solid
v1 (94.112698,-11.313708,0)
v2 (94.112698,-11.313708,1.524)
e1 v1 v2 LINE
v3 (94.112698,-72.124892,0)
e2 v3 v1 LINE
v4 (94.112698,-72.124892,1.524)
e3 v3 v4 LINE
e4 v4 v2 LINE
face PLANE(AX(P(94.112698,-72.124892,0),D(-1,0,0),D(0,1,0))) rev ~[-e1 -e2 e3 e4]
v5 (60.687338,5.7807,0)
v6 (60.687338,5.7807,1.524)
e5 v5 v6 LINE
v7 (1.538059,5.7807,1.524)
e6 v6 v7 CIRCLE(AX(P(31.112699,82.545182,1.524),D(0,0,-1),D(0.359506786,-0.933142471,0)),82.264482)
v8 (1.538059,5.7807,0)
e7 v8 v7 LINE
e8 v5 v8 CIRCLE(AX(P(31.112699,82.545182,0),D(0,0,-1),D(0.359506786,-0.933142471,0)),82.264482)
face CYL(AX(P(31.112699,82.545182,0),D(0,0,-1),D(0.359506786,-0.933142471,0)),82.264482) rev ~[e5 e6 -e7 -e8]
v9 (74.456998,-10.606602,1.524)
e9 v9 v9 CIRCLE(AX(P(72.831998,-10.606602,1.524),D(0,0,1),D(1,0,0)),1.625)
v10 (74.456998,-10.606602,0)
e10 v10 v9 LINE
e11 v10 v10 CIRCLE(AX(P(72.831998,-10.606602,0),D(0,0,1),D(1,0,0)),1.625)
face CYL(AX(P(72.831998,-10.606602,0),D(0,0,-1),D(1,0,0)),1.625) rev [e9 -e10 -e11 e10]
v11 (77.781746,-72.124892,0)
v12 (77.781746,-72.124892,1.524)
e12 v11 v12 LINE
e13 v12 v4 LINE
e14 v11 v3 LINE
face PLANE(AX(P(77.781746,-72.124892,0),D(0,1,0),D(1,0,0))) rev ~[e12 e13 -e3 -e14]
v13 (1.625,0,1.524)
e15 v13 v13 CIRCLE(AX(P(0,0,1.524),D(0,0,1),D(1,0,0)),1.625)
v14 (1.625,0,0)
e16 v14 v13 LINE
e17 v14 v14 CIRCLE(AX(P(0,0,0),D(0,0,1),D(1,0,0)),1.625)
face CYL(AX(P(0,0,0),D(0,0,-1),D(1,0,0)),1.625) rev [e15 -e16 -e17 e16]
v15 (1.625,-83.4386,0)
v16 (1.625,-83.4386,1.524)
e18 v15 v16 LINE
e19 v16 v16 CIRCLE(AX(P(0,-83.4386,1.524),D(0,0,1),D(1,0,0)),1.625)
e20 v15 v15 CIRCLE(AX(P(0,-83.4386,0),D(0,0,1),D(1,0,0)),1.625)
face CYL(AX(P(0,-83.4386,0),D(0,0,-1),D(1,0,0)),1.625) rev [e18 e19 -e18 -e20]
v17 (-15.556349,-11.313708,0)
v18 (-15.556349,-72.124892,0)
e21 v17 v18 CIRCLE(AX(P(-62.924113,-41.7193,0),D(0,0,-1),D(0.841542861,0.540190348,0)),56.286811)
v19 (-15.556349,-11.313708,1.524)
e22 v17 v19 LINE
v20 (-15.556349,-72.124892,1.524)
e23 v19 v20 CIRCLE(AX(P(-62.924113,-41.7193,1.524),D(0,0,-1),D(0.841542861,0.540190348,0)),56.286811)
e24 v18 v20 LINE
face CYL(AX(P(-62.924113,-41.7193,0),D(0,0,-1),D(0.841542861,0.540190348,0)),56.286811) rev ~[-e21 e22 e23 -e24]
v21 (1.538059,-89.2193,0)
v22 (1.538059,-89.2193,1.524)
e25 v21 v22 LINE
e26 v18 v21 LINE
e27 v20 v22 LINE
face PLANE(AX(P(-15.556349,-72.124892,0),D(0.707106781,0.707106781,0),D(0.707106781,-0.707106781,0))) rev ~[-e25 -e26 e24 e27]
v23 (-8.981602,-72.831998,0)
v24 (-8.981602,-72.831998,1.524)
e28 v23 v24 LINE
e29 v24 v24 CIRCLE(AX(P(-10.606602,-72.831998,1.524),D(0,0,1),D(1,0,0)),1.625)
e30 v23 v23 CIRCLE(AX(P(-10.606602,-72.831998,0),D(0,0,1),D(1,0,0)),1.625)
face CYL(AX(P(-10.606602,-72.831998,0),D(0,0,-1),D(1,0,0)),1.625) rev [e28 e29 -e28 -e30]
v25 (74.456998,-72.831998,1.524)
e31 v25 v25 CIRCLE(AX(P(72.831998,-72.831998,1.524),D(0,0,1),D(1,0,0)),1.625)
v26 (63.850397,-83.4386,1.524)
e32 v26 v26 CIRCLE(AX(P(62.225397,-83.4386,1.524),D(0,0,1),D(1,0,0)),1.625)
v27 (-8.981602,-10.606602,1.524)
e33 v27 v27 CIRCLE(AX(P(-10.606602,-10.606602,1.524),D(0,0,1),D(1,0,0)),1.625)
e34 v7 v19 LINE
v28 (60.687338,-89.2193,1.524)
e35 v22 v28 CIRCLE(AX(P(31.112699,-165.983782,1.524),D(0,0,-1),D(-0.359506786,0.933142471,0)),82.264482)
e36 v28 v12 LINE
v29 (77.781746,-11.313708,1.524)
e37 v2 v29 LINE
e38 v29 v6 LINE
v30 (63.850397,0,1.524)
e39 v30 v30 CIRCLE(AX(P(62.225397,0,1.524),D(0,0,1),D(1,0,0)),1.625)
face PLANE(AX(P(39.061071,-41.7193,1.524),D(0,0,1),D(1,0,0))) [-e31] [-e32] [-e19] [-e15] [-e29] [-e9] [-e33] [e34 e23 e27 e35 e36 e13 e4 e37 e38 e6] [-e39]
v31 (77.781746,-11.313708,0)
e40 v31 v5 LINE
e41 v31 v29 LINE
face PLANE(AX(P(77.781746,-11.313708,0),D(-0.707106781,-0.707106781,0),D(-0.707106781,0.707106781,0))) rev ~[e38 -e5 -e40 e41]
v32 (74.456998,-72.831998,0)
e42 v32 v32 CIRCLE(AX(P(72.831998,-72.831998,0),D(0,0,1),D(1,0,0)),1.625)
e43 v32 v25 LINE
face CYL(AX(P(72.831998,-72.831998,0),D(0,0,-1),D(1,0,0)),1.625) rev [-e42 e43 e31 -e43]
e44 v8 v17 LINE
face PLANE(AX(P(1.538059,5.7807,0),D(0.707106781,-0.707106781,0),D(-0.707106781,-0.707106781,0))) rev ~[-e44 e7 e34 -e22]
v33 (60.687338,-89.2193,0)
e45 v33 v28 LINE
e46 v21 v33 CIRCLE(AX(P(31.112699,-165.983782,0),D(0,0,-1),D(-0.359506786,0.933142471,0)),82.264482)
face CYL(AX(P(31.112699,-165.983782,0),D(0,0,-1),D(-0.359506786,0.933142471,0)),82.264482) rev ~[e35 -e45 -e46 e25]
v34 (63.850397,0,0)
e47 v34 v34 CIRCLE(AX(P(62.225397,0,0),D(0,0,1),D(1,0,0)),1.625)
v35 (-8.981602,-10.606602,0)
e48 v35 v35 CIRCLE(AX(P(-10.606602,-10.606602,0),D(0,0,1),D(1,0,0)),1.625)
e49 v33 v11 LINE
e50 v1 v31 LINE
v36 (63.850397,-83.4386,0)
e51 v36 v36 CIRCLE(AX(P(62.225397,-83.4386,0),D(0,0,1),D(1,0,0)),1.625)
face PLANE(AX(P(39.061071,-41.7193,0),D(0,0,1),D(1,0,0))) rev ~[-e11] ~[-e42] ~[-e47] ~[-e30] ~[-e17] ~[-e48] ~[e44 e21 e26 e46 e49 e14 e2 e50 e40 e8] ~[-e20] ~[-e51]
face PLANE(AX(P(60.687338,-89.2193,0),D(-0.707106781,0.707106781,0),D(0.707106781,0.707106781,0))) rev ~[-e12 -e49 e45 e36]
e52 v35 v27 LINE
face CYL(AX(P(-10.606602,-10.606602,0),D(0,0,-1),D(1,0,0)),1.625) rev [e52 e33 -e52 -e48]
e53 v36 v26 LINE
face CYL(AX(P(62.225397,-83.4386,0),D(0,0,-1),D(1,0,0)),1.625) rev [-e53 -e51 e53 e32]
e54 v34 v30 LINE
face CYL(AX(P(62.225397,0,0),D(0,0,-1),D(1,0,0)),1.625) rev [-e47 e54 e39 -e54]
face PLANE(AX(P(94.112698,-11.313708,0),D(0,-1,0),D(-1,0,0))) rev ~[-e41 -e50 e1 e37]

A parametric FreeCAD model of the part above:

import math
import FreeCAD as App
import Part
import Sketcher

V = App.Vector

doc = App.newDocument("Part")
params = doc.addObject("Spreadsheet::Sheet", "Params")
for row, (alias, value) in enumerate([
    ("pad1_length", "0.06 in"),
], start=1):
    params.set(f"A{row}", alias)
    params.set(f"B{row}", "=" + value)
    params.setAlias(f"B{row}", alias)

body = doc.addObject("PartDesign::Body", "Body")

# Sketch on XY plane
sketch1 = body.newObject("Sketcher::SketchObject", "Sketch")
sketch1.AttachmentSupport = (doc.getObject("XY_Plane"), [""])
sketch1.MapMode = "FlatFace"
sketch1.addGeometry([
    Part.LineSegment(V(1.5, 5.8, 0), V(-15.6, -11.3, 0)),  # 0
    Part.ArcOfCircle(Part.Circle(V(-62.9, -41.7, 0), V(0, 0, 1), 56.3), math.radians(-33), math.radians(33)),  # 1
    Part.LineSegment(V(-15.6, -72.1, 0), V(1.5, -89.2, 0)),  # 2
    Part.ArcOfCircle(Part.Circle(V(31.1, -166, 0), V(0, 0, 1), 82.3), math.radians(69), math.radians(111)),  # 3
    Part.LineSegment(V(60.7, -89.2, 0), V(77.8, -72.1, 0)),  # 4
    Part.LineSegment(V(77.8, -72.1, 0), V(94.1, -72.1, 0)),  # 5
    Part.LineSegment(V(94.1, -72.1, 0), V(94.1, -11.3, 0)),  # 6
    Part.LineSegment(V(94.1, -11.3, 0), V(77.8, -11.3, 0)),  # 7
    Part.LineSegment(V(77.8, -11.3, 0), V(60.7, 5.8, 0)),  # 8
    Part.ArcOfCircle(Part.Circle(V(31.1, 82.5, 0), V(0, 0, 1), 82.3), math.radians(-111), math.radians(-69)),  # 9
    Part.Circle(V(0, -83.4, 0), V(0, 0, 1), 1.6),  # 10
    Part.Circle(V(-10.6, -72.8, 0), V(0, 0, 1), 1.6),  # 11
    Part.Circle(V(62.2, -83.4, 0), V(0, 0, 1), 1.6),  # 12
    Part.Circle(V(72.8, -72.8, 0), V(0, 0, 1), 1.6),  # 13
    Part.Circle(V(-10.6, -10.6, 0), V(0, 0, 1), 1.6),  # 14
    Part.Circle(V(0, 0, 0), V(0, 0, 1), 1.6),  # 15
    Part.Circle(V(72.8, -10.6, 0), V(0, 0, 1), 1.6),  # 16
    Part.Circle(V(62.2, 0, 0), V(0, 0, 1), 1.6),  # 17
], False)
sketch1.addConstraint([
    Sketcher.Constraint("Coincident", 0, 2, 1, 2),
    Sketcher.Constraint("Coincident", 1, 1, 2, 1),
    Sketcher.Constraint("Coincident", 2, 2, 3, 2),
    Sketcher.Constraint("Coincident", 3, 1, 4, 1),
    Sketcher.Constraint("Coincident", 4, 2, 5, 1),
    Sketcher.Constraint("Coincident", 5, 2, 6, 1),
    Sketcher.Constraint("Coincident", 6, 2, 7, 1),
    Sketcher.Constraint("Coincident", 7, 2, 8, 1),
    Sketcher.Constraint("Coincident", 8, 2, 9, 2),
    Sketcher.Constraint("Coincident", 9, 1, 0, 1),
    Sketcher.Constraint("Horizontal", 5),
    Sketcher.Constraint("Vertical", 6),
    Sketcher.Constraint("Horizontal", 7),
    Sketcher.Constraint("Coincident", 15, 3, -1, 1),
    Sketcher.Constraint("Equal", 3, 9),
    Sketcher.Constraint("Equal", 10, 11),
    Sketcher.Constraint("Equal", 11, 12),
    Sketcher.Constraint("Equal", 12, 13),
    Sketcher.Constraint("Equal", 13, 14),
    Sketcher.Constraint("Equal", 14, 15),
    Sketcher.Constraint("Equal", 15, 16),
    Sketcher.Constraint("Equal", 16, 17),
    Sketcher.Constraint("PointOnObject", 10, 3, -2),
    Sketcher.Constraint("PointOnObject", 17, 3, -1),
    Sketcher.Constraint("Perpendicular", 0, 2),
    Sketcher.Constraint("Perpendicular", 2, 4),
    Sketcher.Constraint("Perpendicular", 4, 8),
    Sketcher.Constraint("Horizontal", 10, 3, 12, 3),
    Sketcher.Constraint("Horizontal", 11, 3, 13, 3),
    Sketcher.Constraint("Horizontal", 14, 3, 16, 3),
    Sketcher.Constraint("Horizontal", 2, 2, 3, 1),
    Sketcher.Constraint("Horizontal", 1, 1, 4, 2),
    Sketcher.Constraint("Horizontal", 0, 2, 6, 2),
    Sketcher.Constraint("Horizontal", 8, 2, 9, 1),
    Sketcher.Constraint("Vertical", 3, 3, 9, 3),
    Sketcher.Constraint("Vertical", 11, 3, 14, 3),
    Sketcher.Constraint("Vertical", 13, 3, 16, 3),
    Sketcher.Constraint("Vertical", 12, 3, 17, 3),
    Sketcher.Constraint("Vertical", 0, 2, 1, 1),
    Sketcher.Constraint("Vertical", 4, 2, 7, 2),
    Sketcher.Constraint("Vertical", 3, 1, 8, 2),
    Sketcher.Constraint("Diameter", 10, 3.25),
    Sketcher.Constraint("Radius", 1, 56.286811),
    Sketcher.Constraint("Radius", 3, 82.264482),
    Sketcher.Constraint("DistanceX", 5, 1, 5, 2, 16.330952),
    Sketcher.Constraint("DistanceY", 1, 3, -1, 1, 41.7193),
    Sketcher.Constraint("DistanceX", -1, 1, 3, 3, 31.112699),
    Sketcher.Constraint("DistanceY", 10, 3, -1, 1, 83.4386),
    Sketcher.Constraint("DistanceY", 11, 3, -1, 1, 72.831998),
    Sketcher.Constraint("DistanceX", -1, 1, 13, 3, 72.831998),
    Sketcher.Constraint("DistanceY", 2, 2, -1, 1, 89.2193),
    Sketcher.Constraint("DistanceX", 11, 3, 3, 3, 41.719301),
    Sketcher.Constraint("DistanceX", 11, 3, 12, 3, 72.831999),
    Sketcher.Constraint("DistanceY", 10, 3, 14, 3, 72.831998),
    Sketcher.Constraint("DistanceX", 13, 3, 5, 2, 21.2807),
    Sketcher.Constraint("DistanceY", 6, 1, 6, 2, 60.811184),
])
pad1 = body.newObject("PartDesign::Pad", "Pad")
pad1.Profile = sketch1
pad1.setExpression("Length", "Params.pad1_length")

doc.recompute()
